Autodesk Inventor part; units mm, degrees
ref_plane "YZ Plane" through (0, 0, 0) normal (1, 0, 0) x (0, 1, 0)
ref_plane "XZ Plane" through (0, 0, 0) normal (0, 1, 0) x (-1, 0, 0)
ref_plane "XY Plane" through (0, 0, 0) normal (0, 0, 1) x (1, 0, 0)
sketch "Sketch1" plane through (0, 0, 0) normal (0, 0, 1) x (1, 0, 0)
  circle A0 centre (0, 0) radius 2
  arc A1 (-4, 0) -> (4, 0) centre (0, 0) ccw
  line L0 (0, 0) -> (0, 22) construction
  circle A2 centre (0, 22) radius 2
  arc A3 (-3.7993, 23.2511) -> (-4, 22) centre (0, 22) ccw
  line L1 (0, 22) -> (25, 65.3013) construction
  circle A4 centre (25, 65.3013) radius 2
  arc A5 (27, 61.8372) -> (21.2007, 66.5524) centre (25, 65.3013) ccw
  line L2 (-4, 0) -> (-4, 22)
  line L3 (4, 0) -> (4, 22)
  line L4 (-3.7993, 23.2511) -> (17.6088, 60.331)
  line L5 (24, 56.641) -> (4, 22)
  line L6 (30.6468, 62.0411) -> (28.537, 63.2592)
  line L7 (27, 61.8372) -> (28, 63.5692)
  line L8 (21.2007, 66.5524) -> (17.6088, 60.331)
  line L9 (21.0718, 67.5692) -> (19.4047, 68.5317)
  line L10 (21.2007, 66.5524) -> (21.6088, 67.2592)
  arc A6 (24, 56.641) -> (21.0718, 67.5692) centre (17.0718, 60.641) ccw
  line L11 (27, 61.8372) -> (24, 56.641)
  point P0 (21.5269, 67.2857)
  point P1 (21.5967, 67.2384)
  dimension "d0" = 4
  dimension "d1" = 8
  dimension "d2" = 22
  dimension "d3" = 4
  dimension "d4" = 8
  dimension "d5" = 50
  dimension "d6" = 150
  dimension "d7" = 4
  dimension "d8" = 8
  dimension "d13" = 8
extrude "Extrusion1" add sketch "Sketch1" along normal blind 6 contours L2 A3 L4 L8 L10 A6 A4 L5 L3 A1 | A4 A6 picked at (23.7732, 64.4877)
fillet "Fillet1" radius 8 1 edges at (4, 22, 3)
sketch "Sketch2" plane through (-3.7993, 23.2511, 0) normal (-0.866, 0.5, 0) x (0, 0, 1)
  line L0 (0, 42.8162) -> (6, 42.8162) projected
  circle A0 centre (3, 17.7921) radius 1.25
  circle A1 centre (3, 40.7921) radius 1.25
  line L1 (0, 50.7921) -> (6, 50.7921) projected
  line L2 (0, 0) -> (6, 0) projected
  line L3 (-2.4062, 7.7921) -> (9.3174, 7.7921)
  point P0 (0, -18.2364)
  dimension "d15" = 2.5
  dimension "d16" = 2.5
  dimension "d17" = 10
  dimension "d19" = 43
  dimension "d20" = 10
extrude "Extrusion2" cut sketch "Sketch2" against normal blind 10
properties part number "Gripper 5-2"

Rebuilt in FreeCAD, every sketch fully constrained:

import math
import FreeCAD as App
import Part
import Sketcher
Q = App.Units.Quantity


def edges_at(feature, points):
    """Names of the edges that pass closest to the given points."""
    edges = feature.Shape.Edges
    near = lambda p: min(range(len(edges)), key=lambda i: edges[i].distToShape(Part.Vertex(*p))[0])
    return sorted({f"Edge{near(p) + 1}" for p in points})

doc = App.newDocument("Part")
body = doc.addObject("PartDesign::Body", "Body")

sketch1 = doc.addObject("Sketcher::SketchObject", "Sketch")
body.addObject(sketch1)
sketch1.AttachmentSupport = (doc.XY_Plane, [""])
sketch1.MapMode = "FlatFace"
sketch1.addGeometry(Part.LineSegment(App.Vector(-4, 22, 0), App.Vector(-4, 0, 0)), False)
sketch1.addGeometry(Part.ArcOfCircle(Part.Circle(App.Vector(0, 0, 0), App.Vector(0, 0, 1), 4), math.radians(180), math.radians(360)), False)
sketch1.addGeometry(Part.LineSegment(App.Vector(4, 0, 0), App.Vector(4, 22, 0)), False)
sketch1.addGeometry(Part.LineSegment(App.Vector(4, 22, 0), App.Vector(24, 56.641, 0)), False)
sketch1.addGeometry(Part.ArcOfCircle(Part.Circle(App.Vector(17.0718, 60.641, 0), App.Vector(0, 0, 1), 7.999997), math.radians(-30.000012), math.radians(55.554712)), False)
sketch1.addGeometry(Part.LineSegment(App.Vector(21.596751, 67.238331, 0), App.Vector(21.2007, 66.5524, 0)), False)
sketch1.addGeometry(Part.LineSegment(App.Vector(21.2007, 66.5524, 0), App.Vector(17.6088, 60.331, 0)), False)
sketch1.addGeometry(Part.LineSegment(App.Vector(17.6088, 60.331, 0), App.Vector(-3.7993, 23.2511, 0)), False)
sketch1.addGeometry(Part.ArcOfCircle(Part.Circle(App.Vector(0, 22, 0), App.Vector(0, 0, 1), 3.999991), math.radians(161.773415), math.radians(180)), False)
sketch1.addGeometry(Part.Circle(App.Vector(0, 0, 0), App.Vector(0, 0, 1), 2), False)
sketch1.addGeometry(Part.Circle(App.Vector(0, 22, 0), App.Vector(0, 0, 1), 2), False)
sketch1.addConstraint(Sketcher.Constraint("Tangent", 0, 2, 1, 1))
sketch1.addConstraint(Sketcher.Constraint("Tangent", 1, 2, 2, 1))
sketch1.addConstraint(Sketcher.Constraint("Coincident", 2, 2, 3, 1))
sketch1.addConstraint(Sketcher.Constraint("Tangent", 3, 2, 4, 1))
sketch1.addConstraint(Sketcher.Constraint("Coincident", 4, 2, 5, 1))
sketch1.addConstraint(Sketcher.Constraint("Coincident", 5, 2, 6, 1))
sketch1.addConstraint(Sketcher.Constraint("Coincident", 6, 2, 7, 1))
sketch1.addConstraint(Sketcher.Constraint("Coincident", 7, 2, 8, 1))
sketch1.addConstraint(Sketcher.Constraint("Tangent", 8, 2, 0, 1))
sketch1.addConstraint(Sketcher.Constraint("Vertical", 0))
sketch1.addConstraint(Sketcher.Constraint("Vertical", 2))
sketch1.addConstraint(Sketcher.Constraint("Coincident", 1, 3, -1, 1))
sketch1.addConstraint(Sketcher.Constraint("Coincident", 9, 3, -1, 1))
sketch1.addConstraint(Sketcher.Constraint("Coincident", 10, 3, 8, 3))
sketch1.addConstraint(Sketcher.Constraint("Equal", 1, 8))
sketch1.addConstraint(Sketcher.Constraint("Equal", 9, 10))
sketch1.addConstraint(Sketcher.Constraint("Parallel", 3, 5))
sketch1.addConstraint(Sketcher.Constraint("Parallel", 5, 6))
sketch1.addConstraint(Sketcher.Constraint("Parallel", 6, 7))
sketch1.addConstraint(Sketcher.Constraint("Horizontal", 10, 3, 2, 2))
sketch1.addConstraint(Sketcher.Constraint("Diameter", 9, Q("4 mm")))
sketch1.addConstraint(Sketcher.Constraint("Radius", 1, Q("4 mm")))
sketch1.addConstraint(Sketcher.Constraint("Radius", 4, Q("8 mm")))
sketch1.addConstraint(Sketcher.Constraint("DistanceY", 0, 2, 0, 1, Q("22 mm")))
sketch1.addConstraint(Sketcher.Constraint("DistanceY", 3, 2, 4, 3, Q("4 mm")))
sketch1.addConstraint(Sketcher.Constraint("Distance", 3, Q("40 mm")))
sketch1.addConstraint(Sketcher.Constraint("DistanceY", 6, 2, 4, 3, Q("0.31 mm")))
sketch1.addConstraint(Sketcher.Constraint("Distance", 5, Q("0.792 mm")))
sketch1.addConstraint(Sketcher.Constraint("DistanceY", -1, 1, 7, 2, Q("23.251 mm")))
pad1 = doc.addObject("PartDesign::Pad", "Pad")
body.addObject(pad1)
pad1.Profile = sketch1
pad1.Length = 6
doc.recompute()

fillet = doc.addObject("PartDesign::Fillet", "Fillet")
body.addObject(fillet)
fillet.Base = (pad1, edges_at(pad1, [(4, 22, 3)]))
fillet.Radius = 8

sketch2 = doc.addObject("Sketcher::SketchObject", "Sketch001")
body.addObject(sketch2)
sketch2.Placement = App.Placement(App.Vector(-3.7993, 23.2511, 0), App.Rotation(App.Vector(0, 0, 1), App.Vector(0.5, 0.866025404, 0), App.Vector(-0.866025404, 0.5, 0), "ZXY"))
sketch2.addGeometry(Part.Circle(App.Vector(3, 17.7921, 0), App.Vector(0, 0, 1), 1.25), False)
sketch2.addGeometry(Part.Circle(App.Vector(3, 40.7921, 0), App.Vector(0, 0, 1), 1.25), False)
sketch2.addConstraint(Sketcher.Constraint("Equal", 0, 1))
sketch2.addConstraint(Sketcher.Constraint("Vertical", 0, 3, 1, 3))
sketch2.addConstraint(Sketcher.Constraint("Diameter", 0, Q("2.5 mm")))
sketch2.addConstraint(Sketcher.Constraint("DistanceX", -1, 1, 0, 3, Q("3 mm")))
sketch2.addConstraint(Sketcher.Constraint("DistanceY", 0, 3, 1, 3, Q("23 mm")))
sketch2.addConstraint(Sketcher.Constraint("DistanceY", -1, 1, 0, 3, Q("17.792 mm")))
pocket1 = doc.addObject("PartDesign::Pocket", "Pocket")
body.addObject(pocket1)
pocket1.Profile = sketch2
pocket1.Length = 10

doc.recompute()
